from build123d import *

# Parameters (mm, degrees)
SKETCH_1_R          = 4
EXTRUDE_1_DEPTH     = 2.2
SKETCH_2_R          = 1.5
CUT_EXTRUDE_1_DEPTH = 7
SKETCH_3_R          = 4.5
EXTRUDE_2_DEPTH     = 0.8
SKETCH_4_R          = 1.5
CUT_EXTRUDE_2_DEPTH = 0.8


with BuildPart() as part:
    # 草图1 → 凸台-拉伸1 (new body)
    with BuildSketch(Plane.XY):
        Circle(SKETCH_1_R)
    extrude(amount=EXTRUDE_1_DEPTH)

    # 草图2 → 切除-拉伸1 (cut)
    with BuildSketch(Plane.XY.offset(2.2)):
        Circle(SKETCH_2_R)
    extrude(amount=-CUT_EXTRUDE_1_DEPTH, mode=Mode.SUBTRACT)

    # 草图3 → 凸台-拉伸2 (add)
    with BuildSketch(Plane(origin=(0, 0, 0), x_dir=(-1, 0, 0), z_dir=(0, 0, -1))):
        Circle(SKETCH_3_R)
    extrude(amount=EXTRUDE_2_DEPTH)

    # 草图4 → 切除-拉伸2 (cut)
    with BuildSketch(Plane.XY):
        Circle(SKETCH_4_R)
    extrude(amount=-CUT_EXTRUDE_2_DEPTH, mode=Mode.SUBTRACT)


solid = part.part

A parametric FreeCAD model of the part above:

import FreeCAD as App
import Part
import Sketcher

V = App.Vector

doc = App.newDocument("Part")
body = doc.addObject("PartDesign::Body", "Body")

# Sketch on XY plane
sketch1 = body.newObject("Sketcher::SketchObject", "Sketch")
sketch1.AttachmentSupport = (doc.getObject("XY_Plane"), [""])
sketch1.MapMode = "FlatFace"
sketch1.addGeometry(Part.Circle(V(0, 0, 0), V(0, 0, 1), 4), False)
sketch1.addConstraint(Sketcher.Constraint("Coincident", 0, 3, -1, 1))
sketch1.addConstraint(Sketcher.Constraint("Diameter", 0, 8.0))
pad1 = body.newObject("PartDesign::Pad", "Pad")
pad1.Profile = sketch1
pad1.Length = 2.2

# Sketch on XY plane
sketch2 = body.newObject("Sketcher::SketchObject", "Sketch001")
sketch2.AttachmentSupport = (doc.getObject("XY_Plane"), [""])
sketch2.MapMode = "FlatFace"
sketch2.AttachmentOffset = App.Placement(V(0, 0, 2.2), App.Rotation())
sketch2.addGeometry(Part.Circle(V(0, 0, 0), V(0, 0, 1), 1.5), False)
sketch2.addConstraint(Sketcher.Constraint("Coincident", 0, 3, -1, 1))
sketch2.addConstraint(Sketcher.Constraint("Diameter", 0, 3.0))
pocket1 = body.newObject("PartDesign::Pocket", "Pocket")
pocket1.Profile = sketch2
pocket1.Length = 7

# Sketch on XY plane
sketch3 = body.newObject("Sketcher::SketchObject", "Sketch002")
sketch3.AttachmentSupport = (doc.getObject("XY_Plane"), [""])
sketch3.MapMode = "FlatFace"
sketch3.addGeometry(Part.Circle(V(0, 0, 0), V(0, 0, 1), 4.5), False)
sketch3.addConstraint(Sketcher.Constraint("Coincident", 0, 3, -1, 1))
sketch3.addConstraint(Sketcher.Constraint("Diameter", 0, 9.0))
pad2 = body.newObject("PartDesign::Pad", "Pad001")
pad2.Profile = sketch3
pad2.Length = 0.8
pad2.Reversed = True

# Sketch on XY plane
sketch4 = body.newObject("Sketcher::SketchObject", "Sketch003")
sketch4.AttachmentSupport = (doc.getObject("XY_Plane"), [""])
sketch4.MapMode = "FlatFace"
sketch4.addGeometry(Part.Circle(V(0, 0, 0), V(0, 0, 1), 1.5), False)
sketch4.addConstraint(Sketcher.Constraint("Coincident", 0, 3, -1, 1))
sketch4.addConstraint(Sketcher.Constraint("Diameter", 0, 3.0))
pocket2 = body.newObject("PartDesign::Pocket", "Pocket001")
pocket2.Profile = sketch4
pocket2.Length = 0.8

doc.recompute()
